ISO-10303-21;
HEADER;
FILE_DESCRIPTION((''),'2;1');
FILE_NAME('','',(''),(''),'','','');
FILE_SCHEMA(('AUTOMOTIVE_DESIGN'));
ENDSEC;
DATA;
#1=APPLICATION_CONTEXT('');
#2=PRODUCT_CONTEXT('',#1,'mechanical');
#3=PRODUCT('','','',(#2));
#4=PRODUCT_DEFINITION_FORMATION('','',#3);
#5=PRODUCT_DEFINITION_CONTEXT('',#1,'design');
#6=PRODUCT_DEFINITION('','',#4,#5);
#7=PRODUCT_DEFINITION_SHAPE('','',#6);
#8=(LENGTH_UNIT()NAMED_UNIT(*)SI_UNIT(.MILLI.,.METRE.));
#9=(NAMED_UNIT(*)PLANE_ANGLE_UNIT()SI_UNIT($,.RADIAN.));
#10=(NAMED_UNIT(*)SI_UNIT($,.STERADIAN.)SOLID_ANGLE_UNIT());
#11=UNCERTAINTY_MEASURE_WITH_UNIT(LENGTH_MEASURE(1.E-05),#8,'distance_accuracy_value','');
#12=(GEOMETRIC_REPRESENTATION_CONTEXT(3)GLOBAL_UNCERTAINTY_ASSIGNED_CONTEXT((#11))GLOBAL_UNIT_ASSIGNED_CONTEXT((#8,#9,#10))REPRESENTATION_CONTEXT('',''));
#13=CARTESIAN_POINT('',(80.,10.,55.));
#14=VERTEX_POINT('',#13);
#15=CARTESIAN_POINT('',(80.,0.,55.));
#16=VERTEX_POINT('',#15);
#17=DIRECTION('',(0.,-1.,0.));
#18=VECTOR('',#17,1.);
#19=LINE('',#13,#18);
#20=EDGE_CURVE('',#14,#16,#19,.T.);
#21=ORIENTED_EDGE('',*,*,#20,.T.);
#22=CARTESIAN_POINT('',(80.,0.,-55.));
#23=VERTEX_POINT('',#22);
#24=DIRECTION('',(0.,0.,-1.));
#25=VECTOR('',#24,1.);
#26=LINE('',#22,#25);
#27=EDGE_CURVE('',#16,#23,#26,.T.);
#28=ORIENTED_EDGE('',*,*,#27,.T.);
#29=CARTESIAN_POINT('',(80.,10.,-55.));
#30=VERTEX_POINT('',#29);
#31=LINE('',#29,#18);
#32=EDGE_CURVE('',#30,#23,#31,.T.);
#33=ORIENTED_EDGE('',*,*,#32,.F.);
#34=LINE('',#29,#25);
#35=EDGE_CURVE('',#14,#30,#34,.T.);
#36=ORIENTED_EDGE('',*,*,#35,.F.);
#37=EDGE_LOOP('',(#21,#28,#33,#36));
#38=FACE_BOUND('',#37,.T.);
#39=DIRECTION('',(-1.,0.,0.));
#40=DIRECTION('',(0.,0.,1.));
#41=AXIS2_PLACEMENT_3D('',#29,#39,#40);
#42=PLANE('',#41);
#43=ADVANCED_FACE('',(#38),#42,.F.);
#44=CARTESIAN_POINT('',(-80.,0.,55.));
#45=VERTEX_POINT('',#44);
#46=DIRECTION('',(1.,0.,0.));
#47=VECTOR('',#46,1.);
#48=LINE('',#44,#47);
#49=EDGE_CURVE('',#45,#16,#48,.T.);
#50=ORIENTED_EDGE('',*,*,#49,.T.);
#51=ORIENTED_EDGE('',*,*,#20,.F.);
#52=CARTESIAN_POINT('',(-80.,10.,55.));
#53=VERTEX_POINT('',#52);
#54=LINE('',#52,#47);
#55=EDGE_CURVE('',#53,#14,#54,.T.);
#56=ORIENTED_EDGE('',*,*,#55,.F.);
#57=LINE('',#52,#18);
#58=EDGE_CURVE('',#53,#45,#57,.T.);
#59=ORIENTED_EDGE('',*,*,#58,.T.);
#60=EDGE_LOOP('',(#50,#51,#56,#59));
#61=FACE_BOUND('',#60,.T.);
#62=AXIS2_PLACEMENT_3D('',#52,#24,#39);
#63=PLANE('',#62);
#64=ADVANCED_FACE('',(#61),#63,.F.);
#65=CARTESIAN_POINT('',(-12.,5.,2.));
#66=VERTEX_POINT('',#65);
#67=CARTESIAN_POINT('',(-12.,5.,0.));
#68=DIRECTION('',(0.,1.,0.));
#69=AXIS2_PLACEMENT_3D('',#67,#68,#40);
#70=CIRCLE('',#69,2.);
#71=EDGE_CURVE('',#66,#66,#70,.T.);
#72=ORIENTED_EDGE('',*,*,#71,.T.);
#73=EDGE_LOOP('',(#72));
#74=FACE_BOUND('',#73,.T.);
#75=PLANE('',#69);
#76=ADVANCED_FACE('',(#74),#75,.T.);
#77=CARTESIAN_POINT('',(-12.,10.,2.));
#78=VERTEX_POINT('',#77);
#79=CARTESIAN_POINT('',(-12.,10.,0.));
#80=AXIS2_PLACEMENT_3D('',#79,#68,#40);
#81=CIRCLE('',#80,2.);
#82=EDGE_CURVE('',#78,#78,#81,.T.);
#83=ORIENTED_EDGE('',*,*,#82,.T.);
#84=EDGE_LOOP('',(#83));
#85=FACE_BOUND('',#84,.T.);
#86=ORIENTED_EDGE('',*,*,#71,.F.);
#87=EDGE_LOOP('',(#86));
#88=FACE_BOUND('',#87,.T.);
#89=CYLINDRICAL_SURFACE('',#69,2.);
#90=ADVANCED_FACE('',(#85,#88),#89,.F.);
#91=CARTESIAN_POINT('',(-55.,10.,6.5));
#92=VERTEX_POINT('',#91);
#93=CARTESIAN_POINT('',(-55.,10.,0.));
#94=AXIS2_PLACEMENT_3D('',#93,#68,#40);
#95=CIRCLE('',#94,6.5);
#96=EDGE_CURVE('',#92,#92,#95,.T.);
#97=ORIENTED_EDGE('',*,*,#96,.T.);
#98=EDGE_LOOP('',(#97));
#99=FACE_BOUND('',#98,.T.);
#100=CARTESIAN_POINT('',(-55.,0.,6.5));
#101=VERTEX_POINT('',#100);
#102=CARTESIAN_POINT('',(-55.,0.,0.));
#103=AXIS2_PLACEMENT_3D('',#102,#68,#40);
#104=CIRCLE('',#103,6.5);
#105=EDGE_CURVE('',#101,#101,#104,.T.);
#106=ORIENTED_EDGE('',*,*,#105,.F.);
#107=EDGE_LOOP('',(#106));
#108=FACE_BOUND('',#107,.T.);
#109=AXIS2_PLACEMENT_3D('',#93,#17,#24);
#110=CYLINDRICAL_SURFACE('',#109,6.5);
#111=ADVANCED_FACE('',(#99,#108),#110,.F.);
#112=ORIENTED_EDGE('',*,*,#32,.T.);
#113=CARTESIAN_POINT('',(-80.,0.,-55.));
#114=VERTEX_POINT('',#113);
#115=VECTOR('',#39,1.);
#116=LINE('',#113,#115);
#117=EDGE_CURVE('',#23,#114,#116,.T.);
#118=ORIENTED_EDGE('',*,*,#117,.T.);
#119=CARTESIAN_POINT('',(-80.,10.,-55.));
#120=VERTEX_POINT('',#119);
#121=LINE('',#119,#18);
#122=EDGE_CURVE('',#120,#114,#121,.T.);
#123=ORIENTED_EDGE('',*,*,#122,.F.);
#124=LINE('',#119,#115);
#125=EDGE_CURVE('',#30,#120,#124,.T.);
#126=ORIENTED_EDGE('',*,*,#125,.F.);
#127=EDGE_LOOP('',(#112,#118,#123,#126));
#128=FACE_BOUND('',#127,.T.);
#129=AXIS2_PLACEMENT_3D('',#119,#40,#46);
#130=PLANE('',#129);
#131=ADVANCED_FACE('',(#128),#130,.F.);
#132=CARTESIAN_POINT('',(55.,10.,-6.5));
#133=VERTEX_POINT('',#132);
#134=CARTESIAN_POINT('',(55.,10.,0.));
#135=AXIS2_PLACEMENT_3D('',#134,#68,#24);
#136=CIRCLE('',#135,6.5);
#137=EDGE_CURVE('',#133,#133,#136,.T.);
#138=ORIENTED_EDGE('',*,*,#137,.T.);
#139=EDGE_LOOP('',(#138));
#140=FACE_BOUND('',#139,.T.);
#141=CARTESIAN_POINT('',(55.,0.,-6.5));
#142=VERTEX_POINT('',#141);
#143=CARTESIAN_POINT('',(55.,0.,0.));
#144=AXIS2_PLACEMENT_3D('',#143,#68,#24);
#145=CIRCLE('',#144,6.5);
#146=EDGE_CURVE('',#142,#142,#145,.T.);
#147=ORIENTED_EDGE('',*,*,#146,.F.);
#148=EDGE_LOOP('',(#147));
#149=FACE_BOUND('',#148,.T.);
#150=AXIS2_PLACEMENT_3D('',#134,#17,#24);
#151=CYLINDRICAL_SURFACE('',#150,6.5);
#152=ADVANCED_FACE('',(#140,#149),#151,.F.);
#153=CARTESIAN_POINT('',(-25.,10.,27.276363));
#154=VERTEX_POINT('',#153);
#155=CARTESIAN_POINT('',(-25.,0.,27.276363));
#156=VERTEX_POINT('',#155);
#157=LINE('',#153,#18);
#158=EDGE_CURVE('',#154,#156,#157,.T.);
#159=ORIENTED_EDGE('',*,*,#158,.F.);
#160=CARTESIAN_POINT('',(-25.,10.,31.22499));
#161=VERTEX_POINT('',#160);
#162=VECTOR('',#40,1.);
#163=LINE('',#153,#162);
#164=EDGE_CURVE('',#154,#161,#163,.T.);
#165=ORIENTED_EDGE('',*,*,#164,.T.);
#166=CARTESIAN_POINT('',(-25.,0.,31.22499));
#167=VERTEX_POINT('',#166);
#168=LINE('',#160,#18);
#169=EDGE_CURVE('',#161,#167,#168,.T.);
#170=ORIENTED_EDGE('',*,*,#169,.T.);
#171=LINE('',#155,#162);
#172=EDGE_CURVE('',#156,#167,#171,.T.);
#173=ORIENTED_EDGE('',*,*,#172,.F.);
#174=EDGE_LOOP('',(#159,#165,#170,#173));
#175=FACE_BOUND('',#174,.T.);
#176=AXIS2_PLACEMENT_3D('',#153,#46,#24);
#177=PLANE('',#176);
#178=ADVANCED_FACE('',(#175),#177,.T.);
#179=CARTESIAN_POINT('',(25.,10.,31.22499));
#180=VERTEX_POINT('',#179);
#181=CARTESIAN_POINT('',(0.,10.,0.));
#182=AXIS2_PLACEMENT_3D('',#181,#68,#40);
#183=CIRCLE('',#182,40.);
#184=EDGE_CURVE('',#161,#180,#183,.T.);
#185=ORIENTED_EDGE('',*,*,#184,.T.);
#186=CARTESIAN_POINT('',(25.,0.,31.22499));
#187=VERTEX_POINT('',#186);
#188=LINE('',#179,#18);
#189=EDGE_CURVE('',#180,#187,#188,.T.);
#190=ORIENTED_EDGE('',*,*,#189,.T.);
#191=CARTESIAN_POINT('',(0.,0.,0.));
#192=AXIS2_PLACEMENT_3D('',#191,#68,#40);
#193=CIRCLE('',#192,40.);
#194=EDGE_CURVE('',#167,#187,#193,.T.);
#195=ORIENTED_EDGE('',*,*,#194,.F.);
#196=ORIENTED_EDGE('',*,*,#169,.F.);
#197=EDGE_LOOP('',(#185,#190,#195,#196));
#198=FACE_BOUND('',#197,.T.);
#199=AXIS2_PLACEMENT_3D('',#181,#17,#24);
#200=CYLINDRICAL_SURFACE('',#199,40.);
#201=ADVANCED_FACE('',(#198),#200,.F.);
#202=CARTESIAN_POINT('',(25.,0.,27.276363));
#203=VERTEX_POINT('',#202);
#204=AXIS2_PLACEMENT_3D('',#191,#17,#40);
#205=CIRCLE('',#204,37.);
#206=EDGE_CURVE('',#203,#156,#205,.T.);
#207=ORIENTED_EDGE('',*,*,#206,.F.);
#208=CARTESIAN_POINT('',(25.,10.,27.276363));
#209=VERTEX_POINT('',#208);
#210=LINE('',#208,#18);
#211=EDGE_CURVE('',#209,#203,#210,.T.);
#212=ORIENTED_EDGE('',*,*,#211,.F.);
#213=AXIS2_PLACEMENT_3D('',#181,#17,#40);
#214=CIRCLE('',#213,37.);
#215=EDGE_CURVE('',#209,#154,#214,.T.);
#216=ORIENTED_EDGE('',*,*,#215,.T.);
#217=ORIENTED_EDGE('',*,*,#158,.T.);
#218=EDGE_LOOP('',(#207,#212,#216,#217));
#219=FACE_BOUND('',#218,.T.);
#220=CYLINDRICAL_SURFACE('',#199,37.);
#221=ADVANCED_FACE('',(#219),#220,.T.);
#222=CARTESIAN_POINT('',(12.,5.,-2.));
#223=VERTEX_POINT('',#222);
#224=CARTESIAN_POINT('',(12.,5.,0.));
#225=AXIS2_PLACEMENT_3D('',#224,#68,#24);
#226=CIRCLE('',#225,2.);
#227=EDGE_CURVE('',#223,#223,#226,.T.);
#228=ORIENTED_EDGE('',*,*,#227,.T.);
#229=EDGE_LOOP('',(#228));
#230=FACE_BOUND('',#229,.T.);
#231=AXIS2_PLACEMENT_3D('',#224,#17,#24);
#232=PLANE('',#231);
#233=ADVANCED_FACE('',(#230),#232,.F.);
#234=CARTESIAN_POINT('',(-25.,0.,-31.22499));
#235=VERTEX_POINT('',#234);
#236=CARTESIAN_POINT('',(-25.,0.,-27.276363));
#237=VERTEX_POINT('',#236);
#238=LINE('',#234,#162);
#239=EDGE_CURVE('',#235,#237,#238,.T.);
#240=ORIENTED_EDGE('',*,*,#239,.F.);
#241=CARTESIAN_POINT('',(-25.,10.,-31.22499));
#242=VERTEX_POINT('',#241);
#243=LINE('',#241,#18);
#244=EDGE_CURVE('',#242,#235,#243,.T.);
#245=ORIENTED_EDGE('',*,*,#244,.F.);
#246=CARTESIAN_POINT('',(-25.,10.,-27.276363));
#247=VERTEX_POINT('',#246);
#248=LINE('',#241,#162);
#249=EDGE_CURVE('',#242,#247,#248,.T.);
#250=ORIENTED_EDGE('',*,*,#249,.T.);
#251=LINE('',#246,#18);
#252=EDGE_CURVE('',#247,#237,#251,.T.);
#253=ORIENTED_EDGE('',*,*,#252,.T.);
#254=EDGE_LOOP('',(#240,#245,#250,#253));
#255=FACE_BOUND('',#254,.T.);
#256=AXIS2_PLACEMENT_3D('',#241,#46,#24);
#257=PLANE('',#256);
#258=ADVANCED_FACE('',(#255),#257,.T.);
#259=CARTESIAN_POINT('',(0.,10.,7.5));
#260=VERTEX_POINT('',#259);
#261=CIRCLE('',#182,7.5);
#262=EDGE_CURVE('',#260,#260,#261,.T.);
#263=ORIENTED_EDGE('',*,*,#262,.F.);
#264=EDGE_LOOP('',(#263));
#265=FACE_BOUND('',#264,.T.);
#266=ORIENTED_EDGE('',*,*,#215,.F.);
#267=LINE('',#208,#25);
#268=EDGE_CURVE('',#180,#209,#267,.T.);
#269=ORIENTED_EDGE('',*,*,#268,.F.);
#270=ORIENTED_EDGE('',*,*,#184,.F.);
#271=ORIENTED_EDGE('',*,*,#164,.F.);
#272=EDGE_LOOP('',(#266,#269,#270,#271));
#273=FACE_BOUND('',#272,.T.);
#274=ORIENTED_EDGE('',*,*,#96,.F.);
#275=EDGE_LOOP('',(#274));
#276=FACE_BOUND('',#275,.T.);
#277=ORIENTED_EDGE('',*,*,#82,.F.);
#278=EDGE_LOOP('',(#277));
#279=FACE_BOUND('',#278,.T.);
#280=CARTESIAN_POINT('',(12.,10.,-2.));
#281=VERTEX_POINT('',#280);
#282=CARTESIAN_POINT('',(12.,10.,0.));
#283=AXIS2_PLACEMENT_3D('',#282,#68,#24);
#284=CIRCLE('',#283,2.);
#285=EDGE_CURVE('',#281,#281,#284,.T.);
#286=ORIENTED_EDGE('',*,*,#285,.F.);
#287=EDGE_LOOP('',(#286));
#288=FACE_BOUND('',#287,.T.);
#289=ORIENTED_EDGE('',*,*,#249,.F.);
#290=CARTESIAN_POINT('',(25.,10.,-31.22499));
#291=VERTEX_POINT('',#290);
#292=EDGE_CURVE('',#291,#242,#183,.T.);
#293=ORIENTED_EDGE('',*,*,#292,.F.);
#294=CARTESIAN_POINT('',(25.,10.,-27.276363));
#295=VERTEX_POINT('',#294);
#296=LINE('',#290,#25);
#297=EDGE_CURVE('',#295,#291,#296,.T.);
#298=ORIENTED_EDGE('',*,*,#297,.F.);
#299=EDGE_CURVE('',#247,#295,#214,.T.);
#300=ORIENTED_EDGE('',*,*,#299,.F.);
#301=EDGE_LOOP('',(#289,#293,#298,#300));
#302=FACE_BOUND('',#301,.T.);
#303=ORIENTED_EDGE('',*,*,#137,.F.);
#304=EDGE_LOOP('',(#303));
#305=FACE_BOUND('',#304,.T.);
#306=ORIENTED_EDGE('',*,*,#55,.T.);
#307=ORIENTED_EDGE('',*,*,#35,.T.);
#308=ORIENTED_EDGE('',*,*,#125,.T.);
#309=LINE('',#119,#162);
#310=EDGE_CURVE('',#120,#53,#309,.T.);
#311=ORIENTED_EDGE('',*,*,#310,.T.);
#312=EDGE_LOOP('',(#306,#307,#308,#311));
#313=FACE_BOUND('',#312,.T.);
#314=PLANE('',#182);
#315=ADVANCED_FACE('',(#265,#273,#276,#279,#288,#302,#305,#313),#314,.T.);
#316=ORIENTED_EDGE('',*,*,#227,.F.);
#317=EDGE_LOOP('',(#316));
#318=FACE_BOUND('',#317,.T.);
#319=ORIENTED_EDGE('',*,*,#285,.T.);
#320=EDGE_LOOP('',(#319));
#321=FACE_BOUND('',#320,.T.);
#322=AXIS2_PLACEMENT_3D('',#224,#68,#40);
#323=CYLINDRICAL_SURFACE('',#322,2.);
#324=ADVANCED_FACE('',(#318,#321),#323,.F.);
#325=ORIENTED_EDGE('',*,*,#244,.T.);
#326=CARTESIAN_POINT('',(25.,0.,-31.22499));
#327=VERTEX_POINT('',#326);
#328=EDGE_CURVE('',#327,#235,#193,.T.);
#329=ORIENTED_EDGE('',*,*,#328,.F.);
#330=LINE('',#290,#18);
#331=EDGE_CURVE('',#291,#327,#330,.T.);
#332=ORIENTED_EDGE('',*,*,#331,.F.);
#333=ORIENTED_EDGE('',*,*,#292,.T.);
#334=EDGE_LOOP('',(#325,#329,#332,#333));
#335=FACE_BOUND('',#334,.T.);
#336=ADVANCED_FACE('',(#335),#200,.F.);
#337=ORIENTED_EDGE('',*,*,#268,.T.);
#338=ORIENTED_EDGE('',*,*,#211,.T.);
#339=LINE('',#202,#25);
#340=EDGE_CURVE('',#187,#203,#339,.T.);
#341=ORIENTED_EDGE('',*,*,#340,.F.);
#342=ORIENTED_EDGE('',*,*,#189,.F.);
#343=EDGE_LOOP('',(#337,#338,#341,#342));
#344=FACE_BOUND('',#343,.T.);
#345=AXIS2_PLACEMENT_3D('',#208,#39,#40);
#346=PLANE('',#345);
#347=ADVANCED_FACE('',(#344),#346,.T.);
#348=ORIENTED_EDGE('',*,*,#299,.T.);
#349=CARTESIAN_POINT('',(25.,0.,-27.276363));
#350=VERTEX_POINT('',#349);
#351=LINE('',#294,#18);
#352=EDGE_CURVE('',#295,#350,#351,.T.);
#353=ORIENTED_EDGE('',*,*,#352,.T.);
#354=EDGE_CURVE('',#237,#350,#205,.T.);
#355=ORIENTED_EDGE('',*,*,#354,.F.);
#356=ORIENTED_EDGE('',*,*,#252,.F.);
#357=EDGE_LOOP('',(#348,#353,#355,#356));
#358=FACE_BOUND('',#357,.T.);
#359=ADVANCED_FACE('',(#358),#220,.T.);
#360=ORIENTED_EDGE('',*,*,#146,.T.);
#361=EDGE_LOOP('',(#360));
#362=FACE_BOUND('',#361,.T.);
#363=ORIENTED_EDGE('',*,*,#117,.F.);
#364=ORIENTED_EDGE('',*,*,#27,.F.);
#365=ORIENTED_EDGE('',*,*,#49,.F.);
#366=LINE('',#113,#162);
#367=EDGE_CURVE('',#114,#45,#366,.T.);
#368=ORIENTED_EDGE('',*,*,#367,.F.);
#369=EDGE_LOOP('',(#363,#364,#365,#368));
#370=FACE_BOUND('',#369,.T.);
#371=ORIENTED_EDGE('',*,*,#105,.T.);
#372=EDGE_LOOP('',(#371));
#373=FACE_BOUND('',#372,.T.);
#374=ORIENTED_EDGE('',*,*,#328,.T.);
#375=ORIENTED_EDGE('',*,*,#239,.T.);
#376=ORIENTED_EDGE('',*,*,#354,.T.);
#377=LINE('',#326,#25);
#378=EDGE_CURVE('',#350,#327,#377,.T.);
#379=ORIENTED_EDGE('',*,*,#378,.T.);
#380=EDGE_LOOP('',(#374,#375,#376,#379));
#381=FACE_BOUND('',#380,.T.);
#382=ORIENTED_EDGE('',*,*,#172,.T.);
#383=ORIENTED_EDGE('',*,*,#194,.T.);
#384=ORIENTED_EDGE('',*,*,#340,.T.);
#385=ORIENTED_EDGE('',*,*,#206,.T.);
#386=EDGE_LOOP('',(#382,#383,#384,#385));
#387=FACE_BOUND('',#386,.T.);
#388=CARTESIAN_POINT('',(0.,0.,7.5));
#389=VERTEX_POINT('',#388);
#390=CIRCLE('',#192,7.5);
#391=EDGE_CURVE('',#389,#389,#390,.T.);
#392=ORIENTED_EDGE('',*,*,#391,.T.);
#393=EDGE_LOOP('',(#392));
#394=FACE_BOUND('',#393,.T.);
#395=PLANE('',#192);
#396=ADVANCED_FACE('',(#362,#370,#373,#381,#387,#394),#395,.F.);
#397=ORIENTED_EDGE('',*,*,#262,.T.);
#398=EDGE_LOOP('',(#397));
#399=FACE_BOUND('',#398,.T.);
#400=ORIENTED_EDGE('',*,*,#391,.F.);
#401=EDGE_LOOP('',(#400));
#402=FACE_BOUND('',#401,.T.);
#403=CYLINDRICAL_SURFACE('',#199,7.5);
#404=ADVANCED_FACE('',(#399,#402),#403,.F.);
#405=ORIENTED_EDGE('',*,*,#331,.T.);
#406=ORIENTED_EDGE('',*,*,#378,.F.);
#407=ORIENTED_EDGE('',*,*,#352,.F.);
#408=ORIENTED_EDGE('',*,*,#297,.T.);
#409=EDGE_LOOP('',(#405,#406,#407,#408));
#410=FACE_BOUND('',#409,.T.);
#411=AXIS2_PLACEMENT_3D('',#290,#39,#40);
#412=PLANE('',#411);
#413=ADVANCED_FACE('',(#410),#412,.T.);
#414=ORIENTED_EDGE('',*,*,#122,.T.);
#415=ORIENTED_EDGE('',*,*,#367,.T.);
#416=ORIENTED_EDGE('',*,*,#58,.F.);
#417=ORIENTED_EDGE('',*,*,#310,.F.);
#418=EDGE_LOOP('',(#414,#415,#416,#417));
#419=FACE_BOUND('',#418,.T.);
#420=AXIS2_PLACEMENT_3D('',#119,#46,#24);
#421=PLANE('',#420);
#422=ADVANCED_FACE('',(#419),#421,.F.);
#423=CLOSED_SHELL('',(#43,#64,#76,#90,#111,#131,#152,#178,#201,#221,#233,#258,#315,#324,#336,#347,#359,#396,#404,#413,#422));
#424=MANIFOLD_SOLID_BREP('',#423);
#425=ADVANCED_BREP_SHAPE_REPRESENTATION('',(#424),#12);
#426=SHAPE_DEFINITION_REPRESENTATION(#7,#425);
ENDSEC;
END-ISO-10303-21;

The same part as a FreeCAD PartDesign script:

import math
import FreeCAD as App
import Part
import Sketcher

V = App.Vector


def add_polygon(sketch, points):
    """Adds a closed chain of lines whose ends are joined by coincident constraints."""
    first, n = sketch.GeometryCount, len(points)
    for a, b in zip(points, points[1:] + points[:1]):
        sketch.addGeometry(Part.LineSegment(App.Vector(*a, 0), App.Vector(*b, 0)), False)
    for i in range(n):
        sketch.addConstraint(Sketcher.Constraint("Coincident", first + i, 2, first + (i + 1) % n, 1))

doc = App.newDocument("Part")
body = doc.addObject("PartDesign::Body", "Body")

# Sketch on XZ plane
sketch1 = doc.addObject("Sketcher::SketchObject", "Sketch")
body.addObject(sketch1)
sketch1.AttachmentSupport = (doc.XZ_Plane, [""])
sketch1.MapMode = "FlatFace"
add_polygon(sketch1, [(-80, -55), (-80, 55), (80, 55), (80, -55)])  # lines 0-3
sketch1.addGeometry(Part.LineSegment(V(-25, 31.2, 0), V(-25, 27.3, 0)), False)  # 4
sketch1.addGeometry(Part.ArcOfCircle(Part.Circle(V(0, 0, 0), V(0, 0, 1), 37), math.radians(47), math.radians(133)), False)  # 5
sketch1.addGeometry(Part.LineSegment(V(25, 27.3, 0), V(25, 31.2, 0)), False)  # 6
sketch1.addGeometry(Part.ArcOfCircle(Part.Circle(V(0, 0, 0), V(0, 0, 1), 40), math.radians(51), math.radians(129)), False)  # 7
sketch1.addGeometry(Part.Circle(V(-55, 0, 0), V(0, 0, 1), 6.5), False)  # 8
sketch1.addGeometry(Part.Circle(V(0, 0, 0), V(0, 0, 1), 7.5), False)  # 9
sketch1.addGeometry(Part.Circle(V(55, 0, 0), V(0, 0, 1), 6.5), False)  # 10
sketch1.addGeometry(Part.LineSegment(V(-25, -27.3, 0), V(-25, -31.2, 0)), False)  # 11
sketch1.addGeometry(Part.ArcOfCircle(Part.Circle(V(0, 0, 0), V(0, 0, 1), 40), math.radians(-129), math.radians(-51)), False)  # 12
sketch1.addGeometry(Part.LineSegment(V(25, -31.2, 0), V(25, -27.3, 0)), False)  # 13
sketch1.addGeometry(Part.ArcOfCircle(Part.Circle(V(0, 0, 0), V(0, 0, 1), 37), math.radians(-133), math.radians(-47)), False)  # 14
sketch1.addConstraint(Sketcher.Constraint("Coincident", 4, 2, 5, 2))
sketch1.addConstraint(Sketcher.Constraint("Coincident", 5, 1, 6, 1))
sketch1.addConstraint(Sketcher.Constraint("Coincident", 6, 2, 7, 1))
sketch1.addConstraint(Sketcher.Constraint("Coincident", 7, 2, 4, 1))
sketch1.addConstraint(Sketcher.Constraint("Coincident", 11, 2, 12, 1))
sketch1.addConstraint(Sketcher.Constraint("Coincident", 12, 2, 13, 1))
sketch1.addConstraint(Sketcher.Constraint("Coincident", 13, 2, 14, 2))
sketch1.addConstraint(Sketcher.Constraint("Coincident", 14, 1, 11, 1))
sketch1.addConstraint(Sketcher.Constraint("Vertical", 0))
sketch1.addConstraint(Sketcher.Constraint("Horizontal", 1))
sketch1.addConstraint(Sketcher.Constraint("Vertical", 2))
sketch1.addConstraint(Sketcher.Constraint("Horizontal", 3))
sketch1.addConstraint(Sketcher.Constraint("Vertical", 4))
sketch1.addConstraint(Sketcher.Constraint("Vertical", 6))
sketch1.addConstraint(Sketcher.Constraint("Vertical", 11))
sketch1.addConstraint(Sketcher.Constraint("Vertical", 13))
sketch1.addConstraint(Sketcher.Constraint("Coincident", 5, 3, -1, 1))
sketch1.addConstraint(Sketcher.Constraint("Coincident", 7, 3, -1, 1))
sketch1.addConstraint(Sketcher.Constraint("Coincident", 9, 3, -1, 1))
sketch1.addConstraint(Sketcher.Constraint("Coincident", 12, 3, -1, 1))
sketch1.addConstraint(Sketcher.Constraint("Coincident", 14, 3, -1, 1))
sketch1.addConstraint(Sketcher.Constraint("Equal", 8, 10))
sketch1.addConstraint(Sketcher.Constraint("Equal", 7, 12))
sketch1.addConstraint(Sketcher.Constraint("Equal", 5, 14))
sketch1.addConstraint(Sketcher.Constraint("Symmetric", 8, 3, 10, 3, -1, 1))
sketch1.addConstraint(Sketcher.Constraint("Symmetric", 0, 2, 2, 2, -1, 1))
sketch1.addConstraint(Sketcher.Constraint("PointOnObject", 8, 3, -1))
sketch1.addConstraint(Sketcher.Constraint("Horizontal", 4, 2, 5, 1))
sketch1.addConstraint(Sketcher.Constraint("Horizontal", 11, 2, 12, 2))
sketch1.addConstraint(Sketcher.Constraint("Vertical", 7, 2, 11, 2))
sketch1.addConstraint(Sketcher.Constraint("Diameter", 8, 13.0))
sketch1.addConstraint(Sketcher.Constraint("Diameter", 9, 15.0))
sketch1.addConstraint(Sketcher.Constraint("Radius", 5, 37.0))
sketch1.addConstraint(Sketcher.Constraint("Radius", 7, 40.0))
sketch1.addConstraint(Sketcher.Constraint("DistanceX", 1, 1, 1, 2, 160.0))
sketch1.addConstraint(Sketcher.Constraint("DistanceY", 0, 1, 0, 2, 110.0))
sketch1.addConstraint(Sketcher.Constraint("DistanceX", 8, 3, -1, 1, 55.0))
sketch1.addConstraint(Sketcher.Constraint("DistanceX", 4, 2, -1, 1, 25.0))
pad1 = doc.addObject("PartDesign::Pad", "Pad")
body.addObject(pad1)
pad1.Profile = sketch1
pad1.Length = 10
pad1.Reversed = True

# Sketch on XZ plane
sketch2 = doc.addObject("Sketcher::SketchObject", "Sketch001")
body.addObject(sketch2)
sketch2.AttachmentSupport = (doc.XZ_Plane, [""])
sketch2.MapMode = "FlatFace"
sketch2.AttachmentOffset = App.Placement(V(0, 0, -10), App.Rotation())
sketch2.addGeometry(Part.Circle(V(-12, 0, 0), V(0, 0, 1), 2), False)
sketch2.addGeometry(Part.Circle(V(12, 0, 0), V(0, 0, 1), 2), False)
sketch2.addConstraint(Sketcher.Constraint("Equal", 0, 1))
sketch2.addConstraint(Sketcher.Constraint("Symmetric", 0, 3, 1, 3, -1, 1))
sketch2.addConstraint(Sketcher.Constraint("PointOnObject", 0, 3, -1))
sketch2.addConstraint(Sketcher.Constraint("Diameter", 0, 4.0))
sketch2.addConstraint(Sketcher.Constraint("DistanceX", 0, 3, -1, 1, 12.0))
pocket1 = doc.addObject("PartDesign::Pocket", "Pocket")
body.addObject(pocket1)
pocket1.Profile = sketch2
pocket1.Length = 5
pocket1.Reversed = True

doc.recompute()
